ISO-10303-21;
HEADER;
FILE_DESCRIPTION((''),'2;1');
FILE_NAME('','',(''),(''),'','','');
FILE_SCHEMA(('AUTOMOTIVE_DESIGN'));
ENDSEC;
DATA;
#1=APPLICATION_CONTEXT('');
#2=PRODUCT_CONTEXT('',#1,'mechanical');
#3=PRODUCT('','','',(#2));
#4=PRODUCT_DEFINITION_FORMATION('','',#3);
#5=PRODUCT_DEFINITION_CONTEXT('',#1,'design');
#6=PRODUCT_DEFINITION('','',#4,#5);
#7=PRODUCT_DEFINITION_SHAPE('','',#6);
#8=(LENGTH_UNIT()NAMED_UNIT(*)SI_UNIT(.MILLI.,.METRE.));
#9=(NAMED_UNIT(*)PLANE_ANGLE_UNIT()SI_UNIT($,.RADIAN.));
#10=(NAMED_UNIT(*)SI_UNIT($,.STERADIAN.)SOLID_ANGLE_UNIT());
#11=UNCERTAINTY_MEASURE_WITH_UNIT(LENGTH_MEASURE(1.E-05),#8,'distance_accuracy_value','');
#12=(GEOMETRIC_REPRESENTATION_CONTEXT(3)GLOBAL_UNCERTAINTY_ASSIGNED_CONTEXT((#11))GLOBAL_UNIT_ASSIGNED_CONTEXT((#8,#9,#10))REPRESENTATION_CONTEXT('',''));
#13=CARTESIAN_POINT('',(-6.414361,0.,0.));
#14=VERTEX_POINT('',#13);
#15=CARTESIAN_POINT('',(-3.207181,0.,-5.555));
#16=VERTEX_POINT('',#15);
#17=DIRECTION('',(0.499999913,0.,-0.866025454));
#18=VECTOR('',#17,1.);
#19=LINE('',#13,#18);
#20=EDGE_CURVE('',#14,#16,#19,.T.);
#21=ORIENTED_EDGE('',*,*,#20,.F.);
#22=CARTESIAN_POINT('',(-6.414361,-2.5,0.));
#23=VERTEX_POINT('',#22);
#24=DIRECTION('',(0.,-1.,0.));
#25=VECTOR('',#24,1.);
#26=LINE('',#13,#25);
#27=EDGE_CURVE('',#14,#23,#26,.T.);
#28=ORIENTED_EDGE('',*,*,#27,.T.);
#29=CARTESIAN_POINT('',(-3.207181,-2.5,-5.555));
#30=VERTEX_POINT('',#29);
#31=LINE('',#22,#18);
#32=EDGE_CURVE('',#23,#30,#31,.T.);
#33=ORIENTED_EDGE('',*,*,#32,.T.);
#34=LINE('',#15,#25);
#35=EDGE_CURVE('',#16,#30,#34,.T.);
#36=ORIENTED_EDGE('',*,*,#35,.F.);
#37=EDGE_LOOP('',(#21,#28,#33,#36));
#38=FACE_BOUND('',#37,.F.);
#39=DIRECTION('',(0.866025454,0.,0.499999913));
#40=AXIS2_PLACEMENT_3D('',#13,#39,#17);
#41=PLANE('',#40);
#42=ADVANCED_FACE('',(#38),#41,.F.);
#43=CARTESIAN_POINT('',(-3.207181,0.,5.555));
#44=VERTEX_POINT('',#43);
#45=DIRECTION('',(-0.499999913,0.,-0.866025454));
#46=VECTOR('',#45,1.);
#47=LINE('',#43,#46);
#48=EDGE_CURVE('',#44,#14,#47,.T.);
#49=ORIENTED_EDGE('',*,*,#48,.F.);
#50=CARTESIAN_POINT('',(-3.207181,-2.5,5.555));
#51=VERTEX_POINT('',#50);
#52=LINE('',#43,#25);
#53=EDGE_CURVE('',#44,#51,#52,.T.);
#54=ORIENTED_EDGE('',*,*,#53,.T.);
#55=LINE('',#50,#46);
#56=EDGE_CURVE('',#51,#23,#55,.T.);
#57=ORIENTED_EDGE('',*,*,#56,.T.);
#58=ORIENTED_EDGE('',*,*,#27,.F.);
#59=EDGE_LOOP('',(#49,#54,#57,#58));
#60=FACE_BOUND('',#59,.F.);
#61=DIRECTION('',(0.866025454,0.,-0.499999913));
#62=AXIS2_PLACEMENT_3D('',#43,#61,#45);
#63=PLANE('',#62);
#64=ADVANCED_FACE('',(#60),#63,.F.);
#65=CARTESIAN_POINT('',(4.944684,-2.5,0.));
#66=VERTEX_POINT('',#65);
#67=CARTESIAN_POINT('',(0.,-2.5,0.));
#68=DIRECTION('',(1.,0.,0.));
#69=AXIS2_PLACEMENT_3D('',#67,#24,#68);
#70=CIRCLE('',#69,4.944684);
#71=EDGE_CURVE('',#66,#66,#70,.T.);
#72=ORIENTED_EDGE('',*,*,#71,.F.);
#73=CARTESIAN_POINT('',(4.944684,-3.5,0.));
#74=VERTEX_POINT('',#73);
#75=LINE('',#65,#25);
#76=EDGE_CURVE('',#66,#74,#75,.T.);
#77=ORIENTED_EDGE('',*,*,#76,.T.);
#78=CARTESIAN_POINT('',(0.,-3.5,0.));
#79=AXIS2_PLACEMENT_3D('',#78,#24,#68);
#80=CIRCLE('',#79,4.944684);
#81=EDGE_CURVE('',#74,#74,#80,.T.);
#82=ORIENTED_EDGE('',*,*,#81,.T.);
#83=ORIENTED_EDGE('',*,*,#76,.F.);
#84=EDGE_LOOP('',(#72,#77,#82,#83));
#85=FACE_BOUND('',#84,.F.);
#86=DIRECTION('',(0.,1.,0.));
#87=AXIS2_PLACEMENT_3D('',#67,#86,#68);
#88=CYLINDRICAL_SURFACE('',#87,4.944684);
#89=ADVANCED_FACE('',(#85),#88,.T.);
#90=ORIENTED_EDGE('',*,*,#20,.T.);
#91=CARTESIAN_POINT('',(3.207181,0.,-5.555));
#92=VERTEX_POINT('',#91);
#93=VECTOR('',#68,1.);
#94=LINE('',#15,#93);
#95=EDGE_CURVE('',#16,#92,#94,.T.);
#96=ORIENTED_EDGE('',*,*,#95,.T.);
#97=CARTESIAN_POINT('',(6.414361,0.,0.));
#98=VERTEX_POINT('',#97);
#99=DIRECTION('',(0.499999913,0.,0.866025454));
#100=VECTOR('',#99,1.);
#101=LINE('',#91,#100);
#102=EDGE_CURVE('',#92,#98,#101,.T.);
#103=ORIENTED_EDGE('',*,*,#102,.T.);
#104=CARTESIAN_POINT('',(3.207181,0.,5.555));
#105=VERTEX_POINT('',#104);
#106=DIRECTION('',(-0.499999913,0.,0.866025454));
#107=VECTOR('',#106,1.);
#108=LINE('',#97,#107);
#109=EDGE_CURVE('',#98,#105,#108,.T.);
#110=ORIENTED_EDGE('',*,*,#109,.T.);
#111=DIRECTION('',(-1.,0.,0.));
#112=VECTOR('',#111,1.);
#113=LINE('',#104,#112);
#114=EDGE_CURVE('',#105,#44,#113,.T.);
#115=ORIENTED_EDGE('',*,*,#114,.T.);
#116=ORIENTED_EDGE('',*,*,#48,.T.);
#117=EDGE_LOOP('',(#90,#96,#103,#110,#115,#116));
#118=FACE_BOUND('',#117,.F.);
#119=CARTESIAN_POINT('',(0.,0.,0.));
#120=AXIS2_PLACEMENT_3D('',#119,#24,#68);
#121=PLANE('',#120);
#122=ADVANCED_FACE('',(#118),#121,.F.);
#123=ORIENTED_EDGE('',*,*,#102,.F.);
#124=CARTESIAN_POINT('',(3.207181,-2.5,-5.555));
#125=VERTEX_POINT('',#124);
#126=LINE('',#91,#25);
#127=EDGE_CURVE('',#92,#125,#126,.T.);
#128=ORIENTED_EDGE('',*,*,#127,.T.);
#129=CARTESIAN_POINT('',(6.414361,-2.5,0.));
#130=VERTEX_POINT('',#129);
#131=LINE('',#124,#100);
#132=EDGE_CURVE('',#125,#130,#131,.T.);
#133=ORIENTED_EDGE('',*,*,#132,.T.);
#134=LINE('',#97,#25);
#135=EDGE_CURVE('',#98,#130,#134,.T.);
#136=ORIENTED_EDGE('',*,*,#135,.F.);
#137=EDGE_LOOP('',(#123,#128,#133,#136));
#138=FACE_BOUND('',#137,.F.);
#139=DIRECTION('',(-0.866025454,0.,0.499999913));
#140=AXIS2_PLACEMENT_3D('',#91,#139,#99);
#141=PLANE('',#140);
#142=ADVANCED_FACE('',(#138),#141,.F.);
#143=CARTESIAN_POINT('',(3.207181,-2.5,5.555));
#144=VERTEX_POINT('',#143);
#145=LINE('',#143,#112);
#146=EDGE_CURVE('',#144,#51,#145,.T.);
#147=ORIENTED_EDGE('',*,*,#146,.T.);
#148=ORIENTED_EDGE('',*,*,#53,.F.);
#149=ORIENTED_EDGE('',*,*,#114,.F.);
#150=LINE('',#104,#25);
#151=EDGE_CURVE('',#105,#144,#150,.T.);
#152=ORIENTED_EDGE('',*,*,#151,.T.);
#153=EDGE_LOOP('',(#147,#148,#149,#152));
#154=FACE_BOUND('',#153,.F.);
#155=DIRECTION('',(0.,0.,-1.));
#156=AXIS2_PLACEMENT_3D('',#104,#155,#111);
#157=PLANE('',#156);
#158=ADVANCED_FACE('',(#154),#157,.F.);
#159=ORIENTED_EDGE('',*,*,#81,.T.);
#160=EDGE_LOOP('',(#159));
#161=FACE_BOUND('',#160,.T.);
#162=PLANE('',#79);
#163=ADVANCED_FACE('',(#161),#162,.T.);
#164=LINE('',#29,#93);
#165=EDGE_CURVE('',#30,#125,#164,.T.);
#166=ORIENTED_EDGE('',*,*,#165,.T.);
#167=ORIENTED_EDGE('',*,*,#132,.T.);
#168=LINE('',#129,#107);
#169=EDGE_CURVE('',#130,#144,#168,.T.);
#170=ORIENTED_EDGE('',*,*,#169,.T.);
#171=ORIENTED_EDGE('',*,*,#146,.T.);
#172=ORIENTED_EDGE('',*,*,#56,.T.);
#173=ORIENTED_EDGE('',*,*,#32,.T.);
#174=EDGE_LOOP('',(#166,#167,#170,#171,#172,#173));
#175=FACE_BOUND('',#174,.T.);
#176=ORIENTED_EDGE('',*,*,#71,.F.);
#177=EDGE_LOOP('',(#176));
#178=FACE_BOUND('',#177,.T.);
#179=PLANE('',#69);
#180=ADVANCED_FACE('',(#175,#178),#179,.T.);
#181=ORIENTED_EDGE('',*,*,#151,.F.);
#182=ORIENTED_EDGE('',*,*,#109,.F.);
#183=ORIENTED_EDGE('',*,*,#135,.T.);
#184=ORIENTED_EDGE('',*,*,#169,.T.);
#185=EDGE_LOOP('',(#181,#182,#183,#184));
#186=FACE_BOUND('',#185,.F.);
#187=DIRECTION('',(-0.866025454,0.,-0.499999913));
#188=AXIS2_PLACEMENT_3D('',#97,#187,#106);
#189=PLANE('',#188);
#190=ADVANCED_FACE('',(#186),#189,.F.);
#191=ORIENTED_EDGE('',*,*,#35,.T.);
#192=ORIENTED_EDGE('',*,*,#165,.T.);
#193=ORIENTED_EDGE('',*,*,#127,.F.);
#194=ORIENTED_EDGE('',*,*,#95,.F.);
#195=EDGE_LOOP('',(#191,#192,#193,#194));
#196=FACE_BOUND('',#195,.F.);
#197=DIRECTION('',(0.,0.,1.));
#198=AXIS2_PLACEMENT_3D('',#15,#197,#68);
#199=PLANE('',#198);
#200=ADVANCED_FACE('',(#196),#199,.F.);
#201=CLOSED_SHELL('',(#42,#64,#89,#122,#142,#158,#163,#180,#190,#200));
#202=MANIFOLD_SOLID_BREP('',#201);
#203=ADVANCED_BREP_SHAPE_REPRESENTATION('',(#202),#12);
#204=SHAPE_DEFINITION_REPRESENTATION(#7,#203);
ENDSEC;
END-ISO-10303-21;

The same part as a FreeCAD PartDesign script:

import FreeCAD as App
import Part
import Sketcher
Q = App.Units.Quantity


def add_polygon(sketch, points):
    """Adds a closed chain of lines whose ends are joined by coincident constraints."""
    first, n = sketch.GeometryCount, len(points)
    for a, b in zip(points, points[1:] + points[:1]):
        sketch.addGeometry(Part.LineSegment(App.Vector(*a, 0), App.Vector(*b, 0)), False)
    for i in range(n):
        sketch.addConstraint(Sketcher.Constraint("Coincident", first + i, 2, first + (i + 1) % n, 1))

doc = App.newDocument("Part")
body = doc.addObject("PartDesign::Body", "Body")

# Sketch on XZ plane
sketch1 = doc.addObject("Sketcher::SketchObject", "Sketch")
body.addObject(sketch1)
sketch1.AttachmentSupport = (doc.XZ_Plane, [""])
sketch1.MapMode = "FlatFace"
add_polygon(sketch1, [(-3, -6), (3, -6), (6, 0), (3, 6), (-3, 6), (-6, 0)])  # lines 0-5
sketch1.addConstraint([
    Sketcher.Constraint("Horizontal", 0),
    Sketcher.Constraint("Horizontal", 3),
    Sketcher.Constraint("Symmetric", 0, 2, 3, 2, -1, 1),
    Sketcher.Constraint("Symmetric", 1, 2, 4, 2, -1, 1),
    Sketcher.Constraint("PointOnObject", 1, 2, -1),
    Sketcher.Constraint("Parallel", 2, 5),
    Sketcher.Constraint("Vertical", 0, 2, 2, 2),
    Sketcher.Constraint("Angle", 1, Q("60.000006 deg")),
    Sketcher.Constraint("DistanceY", 0, 2, 2, 2, Q("11.11 mm")),
    Sketcher.Constraint("DistanceX", 0, 1, 0, 2, Q("6.414362 mm")),
])
pad1 = doc.addObject("PartDesign::Pad", "Pad")
body.addObject(pad1)
pad1.Profile = sketch1
pad1.Length = 2.5

# Sketch on XZ plane
sketch2 = doc.addObject("Sketcher::SketchObject", "Sketch001")
body.addObject(sketch2)
sketch2.AttachmentSupport = (doc.XZ_Plane, [""])
sketch2.MapMode = "FlatFace"
sketch2.AttachmentOffset = App.Placement(App.Vector(0, 0, 2.5), App.Rotation())
sketch2.addGeometry(Part.Circle(App.Vector(0, 0, 0), App.Vector(0, 0, 1), 4.9), False)
sketch2.addConstraint([
    Sketcher.Constraint("Coincident", 0, 3, -1, 1),
    Sketcher.Constraint("Diameter", 0, Q("9.889368 mm")),
])
pad2 = doc.addObject("PartDesign::Pad", "Pad001")
body.addObject(pad2)
pad2.Profile = sketch2
pad2.Length = 1

doc.recompute()
